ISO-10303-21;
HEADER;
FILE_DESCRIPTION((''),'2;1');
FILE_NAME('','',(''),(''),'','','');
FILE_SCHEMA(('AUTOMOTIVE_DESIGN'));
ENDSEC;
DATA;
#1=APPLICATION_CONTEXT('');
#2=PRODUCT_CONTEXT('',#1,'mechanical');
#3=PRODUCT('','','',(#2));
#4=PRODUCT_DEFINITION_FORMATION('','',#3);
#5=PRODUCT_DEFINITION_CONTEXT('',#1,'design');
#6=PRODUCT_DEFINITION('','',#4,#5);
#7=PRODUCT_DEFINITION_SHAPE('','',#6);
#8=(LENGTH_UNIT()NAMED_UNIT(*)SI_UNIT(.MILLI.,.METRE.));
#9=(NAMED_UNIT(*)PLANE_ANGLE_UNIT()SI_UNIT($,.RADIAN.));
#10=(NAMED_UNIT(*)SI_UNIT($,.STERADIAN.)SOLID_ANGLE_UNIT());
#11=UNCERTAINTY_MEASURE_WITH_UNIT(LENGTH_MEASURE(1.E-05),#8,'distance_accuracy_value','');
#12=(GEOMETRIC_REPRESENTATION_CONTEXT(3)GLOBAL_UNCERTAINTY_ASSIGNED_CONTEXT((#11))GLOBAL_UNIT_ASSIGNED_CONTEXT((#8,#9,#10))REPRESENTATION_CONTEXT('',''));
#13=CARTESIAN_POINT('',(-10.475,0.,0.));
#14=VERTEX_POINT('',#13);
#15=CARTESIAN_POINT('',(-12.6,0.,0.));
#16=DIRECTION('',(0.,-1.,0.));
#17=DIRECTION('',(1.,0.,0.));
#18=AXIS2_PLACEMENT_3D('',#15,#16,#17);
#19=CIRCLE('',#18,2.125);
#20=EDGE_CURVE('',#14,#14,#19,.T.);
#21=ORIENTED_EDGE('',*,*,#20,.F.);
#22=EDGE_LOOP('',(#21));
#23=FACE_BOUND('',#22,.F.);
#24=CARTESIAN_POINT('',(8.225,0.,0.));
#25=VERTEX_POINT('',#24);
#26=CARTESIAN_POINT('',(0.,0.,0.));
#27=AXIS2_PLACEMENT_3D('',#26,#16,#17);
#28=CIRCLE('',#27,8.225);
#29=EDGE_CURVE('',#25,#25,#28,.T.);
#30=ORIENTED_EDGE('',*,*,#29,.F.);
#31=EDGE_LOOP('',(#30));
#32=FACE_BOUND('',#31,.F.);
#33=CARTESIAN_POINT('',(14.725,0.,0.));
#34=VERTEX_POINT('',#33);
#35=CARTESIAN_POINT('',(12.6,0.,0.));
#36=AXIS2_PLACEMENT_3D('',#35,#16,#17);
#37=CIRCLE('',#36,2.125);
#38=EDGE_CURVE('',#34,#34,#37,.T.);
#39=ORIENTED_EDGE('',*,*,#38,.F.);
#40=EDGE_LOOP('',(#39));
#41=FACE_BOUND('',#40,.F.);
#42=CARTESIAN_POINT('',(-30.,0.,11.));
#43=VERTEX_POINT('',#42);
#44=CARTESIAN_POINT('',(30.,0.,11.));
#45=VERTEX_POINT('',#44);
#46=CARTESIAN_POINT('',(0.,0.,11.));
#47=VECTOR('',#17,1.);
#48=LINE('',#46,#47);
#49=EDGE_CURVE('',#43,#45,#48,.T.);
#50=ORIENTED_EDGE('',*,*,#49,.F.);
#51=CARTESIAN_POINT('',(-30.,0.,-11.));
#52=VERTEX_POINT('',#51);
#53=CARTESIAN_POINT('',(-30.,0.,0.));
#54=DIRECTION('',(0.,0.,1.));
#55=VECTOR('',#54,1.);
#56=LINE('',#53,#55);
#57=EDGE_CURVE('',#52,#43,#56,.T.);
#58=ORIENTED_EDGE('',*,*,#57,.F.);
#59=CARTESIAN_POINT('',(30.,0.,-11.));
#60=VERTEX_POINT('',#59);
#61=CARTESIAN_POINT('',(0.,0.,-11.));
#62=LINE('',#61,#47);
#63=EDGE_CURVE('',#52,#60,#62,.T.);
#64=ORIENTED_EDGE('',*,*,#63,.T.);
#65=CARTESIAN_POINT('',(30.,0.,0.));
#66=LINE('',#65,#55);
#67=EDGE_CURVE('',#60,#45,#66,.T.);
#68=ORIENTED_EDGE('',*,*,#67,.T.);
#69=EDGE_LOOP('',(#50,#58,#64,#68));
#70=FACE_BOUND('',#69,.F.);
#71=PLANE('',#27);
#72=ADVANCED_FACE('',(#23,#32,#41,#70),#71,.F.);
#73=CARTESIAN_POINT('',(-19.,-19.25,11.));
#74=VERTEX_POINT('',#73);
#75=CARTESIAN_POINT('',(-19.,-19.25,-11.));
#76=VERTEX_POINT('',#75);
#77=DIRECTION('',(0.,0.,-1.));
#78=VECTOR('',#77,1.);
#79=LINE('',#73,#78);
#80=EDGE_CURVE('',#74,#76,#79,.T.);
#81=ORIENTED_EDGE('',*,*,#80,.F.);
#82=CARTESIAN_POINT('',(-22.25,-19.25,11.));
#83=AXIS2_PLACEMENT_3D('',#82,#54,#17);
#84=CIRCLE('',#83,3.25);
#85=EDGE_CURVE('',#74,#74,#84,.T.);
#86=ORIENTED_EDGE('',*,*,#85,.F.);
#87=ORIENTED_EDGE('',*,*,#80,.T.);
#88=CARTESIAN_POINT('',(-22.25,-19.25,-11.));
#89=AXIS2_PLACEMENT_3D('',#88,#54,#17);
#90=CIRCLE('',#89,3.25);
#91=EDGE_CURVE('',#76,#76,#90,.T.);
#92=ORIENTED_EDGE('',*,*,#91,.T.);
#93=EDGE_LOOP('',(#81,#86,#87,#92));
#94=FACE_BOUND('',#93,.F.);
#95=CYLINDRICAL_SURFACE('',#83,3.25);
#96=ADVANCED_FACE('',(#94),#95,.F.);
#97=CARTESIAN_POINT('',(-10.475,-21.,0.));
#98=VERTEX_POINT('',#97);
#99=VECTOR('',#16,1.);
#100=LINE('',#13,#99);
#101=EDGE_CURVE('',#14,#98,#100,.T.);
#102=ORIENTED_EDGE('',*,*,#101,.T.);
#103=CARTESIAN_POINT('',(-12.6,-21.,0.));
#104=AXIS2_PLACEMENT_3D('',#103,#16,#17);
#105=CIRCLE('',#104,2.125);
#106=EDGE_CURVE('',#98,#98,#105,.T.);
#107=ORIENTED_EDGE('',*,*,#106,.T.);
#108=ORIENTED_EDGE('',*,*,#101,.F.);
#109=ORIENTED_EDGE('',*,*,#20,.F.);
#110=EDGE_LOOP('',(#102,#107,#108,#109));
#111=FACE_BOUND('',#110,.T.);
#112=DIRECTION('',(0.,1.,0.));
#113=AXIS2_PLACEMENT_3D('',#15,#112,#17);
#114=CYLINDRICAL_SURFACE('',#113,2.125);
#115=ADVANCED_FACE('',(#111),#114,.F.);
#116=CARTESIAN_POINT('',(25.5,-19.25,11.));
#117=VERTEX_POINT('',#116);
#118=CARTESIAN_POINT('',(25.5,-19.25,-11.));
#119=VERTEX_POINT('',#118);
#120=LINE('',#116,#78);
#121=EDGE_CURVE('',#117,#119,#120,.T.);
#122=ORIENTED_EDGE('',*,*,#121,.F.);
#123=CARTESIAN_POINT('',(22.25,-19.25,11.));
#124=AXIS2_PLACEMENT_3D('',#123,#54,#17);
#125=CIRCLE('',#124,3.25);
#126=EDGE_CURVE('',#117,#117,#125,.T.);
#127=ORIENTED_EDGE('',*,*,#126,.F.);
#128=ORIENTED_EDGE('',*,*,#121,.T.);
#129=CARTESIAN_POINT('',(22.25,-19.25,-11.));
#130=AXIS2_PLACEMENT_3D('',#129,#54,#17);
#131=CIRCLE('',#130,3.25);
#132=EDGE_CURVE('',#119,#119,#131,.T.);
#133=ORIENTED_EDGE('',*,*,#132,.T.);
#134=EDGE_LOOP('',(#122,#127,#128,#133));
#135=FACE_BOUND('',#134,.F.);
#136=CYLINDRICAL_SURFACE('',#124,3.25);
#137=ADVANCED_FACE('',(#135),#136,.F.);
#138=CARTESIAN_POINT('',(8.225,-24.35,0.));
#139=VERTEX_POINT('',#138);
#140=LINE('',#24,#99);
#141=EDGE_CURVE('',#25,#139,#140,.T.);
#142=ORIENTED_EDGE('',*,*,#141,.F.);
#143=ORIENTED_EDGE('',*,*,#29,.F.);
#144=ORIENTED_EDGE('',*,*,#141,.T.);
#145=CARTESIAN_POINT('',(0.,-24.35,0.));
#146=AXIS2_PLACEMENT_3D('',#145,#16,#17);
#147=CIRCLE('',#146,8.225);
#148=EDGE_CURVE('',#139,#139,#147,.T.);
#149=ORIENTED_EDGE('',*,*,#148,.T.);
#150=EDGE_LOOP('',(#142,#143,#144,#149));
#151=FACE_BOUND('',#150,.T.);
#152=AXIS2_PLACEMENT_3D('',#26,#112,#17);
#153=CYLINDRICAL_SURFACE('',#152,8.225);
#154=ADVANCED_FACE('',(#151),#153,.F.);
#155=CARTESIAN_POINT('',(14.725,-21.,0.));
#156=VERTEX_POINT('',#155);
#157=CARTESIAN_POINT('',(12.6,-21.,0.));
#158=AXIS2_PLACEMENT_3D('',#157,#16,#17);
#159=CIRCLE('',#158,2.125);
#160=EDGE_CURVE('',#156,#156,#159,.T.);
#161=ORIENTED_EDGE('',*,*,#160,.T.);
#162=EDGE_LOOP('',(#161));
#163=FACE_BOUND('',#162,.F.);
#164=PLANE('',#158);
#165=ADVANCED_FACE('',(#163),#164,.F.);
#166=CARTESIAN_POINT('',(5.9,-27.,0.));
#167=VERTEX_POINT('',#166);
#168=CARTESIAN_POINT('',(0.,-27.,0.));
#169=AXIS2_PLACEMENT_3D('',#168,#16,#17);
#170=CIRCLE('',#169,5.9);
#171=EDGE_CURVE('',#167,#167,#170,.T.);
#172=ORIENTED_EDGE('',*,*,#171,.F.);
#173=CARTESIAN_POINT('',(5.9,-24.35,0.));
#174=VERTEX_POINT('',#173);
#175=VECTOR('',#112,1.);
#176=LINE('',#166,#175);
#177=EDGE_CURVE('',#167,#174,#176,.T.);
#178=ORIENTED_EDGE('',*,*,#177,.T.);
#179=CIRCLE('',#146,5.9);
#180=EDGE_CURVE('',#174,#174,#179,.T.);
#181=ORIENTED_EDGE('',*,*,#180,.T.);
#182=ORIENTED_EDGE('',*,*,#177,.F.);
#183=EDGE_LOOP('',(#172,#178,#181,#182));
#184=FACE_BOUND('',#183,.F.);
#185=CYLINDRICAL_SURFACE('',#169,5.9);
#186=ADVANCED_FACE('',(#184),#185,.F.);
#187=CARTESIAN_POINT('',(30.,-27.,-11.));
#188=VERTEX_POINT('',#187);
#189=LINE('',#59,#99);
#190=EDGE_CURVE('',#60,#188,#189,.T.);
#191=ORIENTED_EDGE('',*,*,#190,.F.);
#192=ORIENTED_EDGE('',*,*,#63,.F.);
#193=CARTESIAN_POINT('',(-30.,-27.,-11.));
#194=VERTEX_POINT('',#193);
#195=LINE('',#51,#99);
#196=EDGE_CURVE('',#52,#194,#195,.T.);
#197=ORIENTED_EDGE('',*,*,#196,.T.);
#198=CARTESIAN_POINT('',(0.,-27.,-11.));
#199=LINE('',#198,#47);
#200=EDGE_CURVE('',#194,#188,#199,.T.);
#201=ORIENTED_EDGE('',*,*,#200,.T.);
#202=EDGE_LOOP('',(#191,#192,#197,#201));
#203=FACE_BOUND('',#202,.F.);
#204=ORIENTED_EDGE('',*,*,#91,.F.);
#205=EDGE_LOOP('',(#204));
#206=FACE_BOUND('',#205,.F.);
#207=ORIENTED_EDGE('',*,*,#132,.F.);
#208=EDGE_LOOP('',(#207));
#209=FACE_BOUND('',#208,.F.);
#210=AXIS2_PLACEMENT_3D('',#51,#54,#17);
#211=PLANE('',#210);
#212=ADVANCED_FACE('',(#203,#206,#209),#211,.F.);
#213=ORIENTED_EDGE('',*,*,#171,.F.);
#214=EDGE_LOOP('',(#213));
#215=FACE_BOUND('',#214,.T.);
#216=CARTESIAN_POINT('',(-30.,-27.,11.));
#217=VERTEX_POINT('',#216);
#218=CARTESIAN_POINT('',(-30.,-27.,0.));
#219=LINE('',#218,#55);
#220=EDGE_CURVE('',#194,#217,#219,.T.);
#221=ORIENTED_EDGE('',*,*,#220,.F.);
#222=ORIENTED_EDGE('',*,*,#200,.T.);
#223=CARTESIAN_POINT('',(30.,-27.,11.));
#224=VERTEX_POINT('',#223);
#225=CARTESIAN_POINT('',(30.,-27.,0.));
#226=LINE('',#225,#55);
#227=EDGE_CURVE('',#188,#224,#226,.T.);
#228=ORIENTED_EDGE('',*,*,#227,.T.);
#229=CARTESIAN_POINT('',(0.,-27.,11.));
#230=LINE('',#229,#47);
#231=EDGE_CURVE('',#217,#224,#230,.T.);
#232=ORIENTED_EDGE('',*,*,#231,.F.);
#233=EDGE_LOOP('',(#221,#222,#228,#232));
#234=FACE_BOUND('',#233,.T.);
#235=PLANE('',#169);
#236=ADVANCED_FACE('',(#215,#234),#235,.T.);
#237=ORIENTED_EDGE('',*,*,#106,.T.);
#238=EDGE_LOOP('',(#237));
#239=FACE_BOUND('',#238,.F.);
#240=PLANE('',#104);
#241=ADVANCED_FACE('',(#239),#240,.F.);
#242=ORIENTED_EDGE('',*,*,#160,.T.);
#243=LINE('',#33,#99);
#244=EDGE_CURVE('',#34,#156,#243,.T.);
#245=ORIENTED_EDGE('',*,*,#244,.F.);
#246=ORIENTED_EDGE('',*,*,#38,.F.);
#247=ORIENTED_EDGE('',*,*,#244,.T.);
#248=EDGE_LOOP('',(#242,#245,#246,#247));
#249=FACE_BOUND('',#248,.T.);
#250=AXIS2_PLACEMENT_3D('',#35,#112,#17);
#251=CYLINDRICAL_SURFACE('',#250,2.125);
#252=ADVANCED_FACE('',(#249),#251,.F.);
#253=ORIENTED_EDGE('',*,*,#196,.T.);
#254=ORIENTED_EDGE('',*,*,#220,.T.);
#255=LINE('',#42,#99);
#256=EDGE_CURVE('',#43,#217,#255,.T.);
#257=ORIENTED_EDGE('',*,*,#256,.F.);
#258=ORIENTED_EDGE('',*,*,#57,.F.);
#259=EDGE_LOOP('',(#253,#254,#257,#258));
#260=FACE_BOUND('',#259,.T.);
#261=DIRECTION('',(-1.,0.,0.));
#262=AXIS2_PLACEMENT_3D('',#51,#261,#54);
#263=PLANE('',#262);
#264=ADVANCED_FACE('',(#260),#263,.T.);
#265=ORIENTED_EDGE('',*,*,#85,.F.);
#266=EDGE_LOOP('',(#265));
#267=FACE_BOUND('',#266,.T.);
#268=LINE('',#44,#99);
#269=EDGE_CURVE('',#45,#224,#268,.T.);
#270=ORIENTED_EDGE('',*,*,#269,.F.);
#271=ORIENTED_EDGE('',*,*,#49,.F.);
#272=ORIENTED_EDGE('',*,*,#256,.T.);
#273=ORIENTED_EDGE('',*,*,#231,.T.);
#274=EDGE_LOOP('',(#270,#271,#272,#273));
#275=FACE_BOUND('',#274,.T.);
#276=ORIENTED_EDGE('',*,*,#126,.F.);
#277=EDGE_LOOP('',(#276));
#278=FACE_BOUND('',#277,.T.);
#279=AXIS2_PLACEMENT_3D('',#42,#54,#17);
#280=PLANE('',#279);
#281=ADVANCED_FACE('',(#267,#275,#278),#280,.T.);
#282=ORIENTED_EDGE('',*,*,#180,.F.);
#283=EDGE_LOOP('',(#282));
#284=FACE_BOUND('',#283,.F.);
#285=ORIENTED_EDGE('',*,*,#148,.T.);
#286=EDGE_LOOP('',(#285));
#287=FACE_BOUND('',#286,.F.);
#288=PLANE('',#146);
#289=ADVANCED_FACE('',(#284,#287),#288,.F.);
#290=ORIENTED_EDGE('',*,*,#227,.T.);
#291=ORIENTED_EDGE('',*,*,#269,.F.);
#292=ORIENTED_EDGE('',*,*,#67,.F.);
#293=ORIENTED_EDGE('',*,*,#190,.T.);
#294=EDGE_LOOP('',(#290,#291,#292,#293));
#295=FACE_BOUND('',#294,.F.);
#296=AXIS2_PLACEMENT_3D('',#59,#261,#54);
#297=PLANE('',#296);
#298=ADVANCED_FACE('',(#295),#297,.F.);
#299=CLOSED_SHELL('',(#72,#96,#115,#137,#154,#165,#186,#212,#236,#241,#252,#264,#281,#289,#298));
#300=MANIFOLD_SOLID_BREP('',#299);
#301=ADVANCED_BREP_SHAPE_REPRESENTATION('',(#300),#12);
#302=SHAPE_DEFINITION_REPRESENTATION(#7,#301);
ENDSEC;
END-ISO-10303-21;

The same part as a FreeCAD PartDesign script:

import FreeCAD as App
import Part
import Sketcher
from FreeCAD import Vector


def add_polygon(sketch, points):
    """Adds a closed chain of lines whose ends are joined by coincident constraints."""
    first, n = sketch.GeometryCount, len(points)
    for a, b in zip(points, points[1:] + points[:1]):
        sketch.addGeometry(Part.LineSegment(App.Vector(*a, 0), App.Vector(*b, 0)), False)
    for i in range(n):
        sketch.addConstraint(Sketcher.Constraint("Coincident", first + i, 2, first + (i + 1) % n, 1))

doc = App.newDocument("Part")
body = doc.addObject("PartDesign::Body", "Body")

# Sketch on XZ plane
sketch1 = body.newObject("Sketcher::SketchObject", "Sketch")
sketch1.AttachmentSupport = (doc.getObject("XZ_Plane"), [""])
sketch1.MapMode = "FlatFace"
add_polygon(sketch1, [(-30, 11), (-30, -11), (30, -11), (30, 11)])  # lines 0-3
sketch1.addConstraint(Sketcher.Constraint("Vertical", 0))
sketch1.addConstraint(Sketcher.Constraint("Horizontal", 1))
sketch1.addConstraint(Sketcher.Constraint("Vertical", 2))
sketch1.addConstraint(Sketcher.Constraint("Horizontal", 3))
sketch1.addConstraint(Sketcher.Constraint("Symmetric", 0, 2, 2, 2, -1, 1))
sketch1.addConstraint(Sketcher.Constraint("DistanceX", 1, 1, 1, 2, 60.0))
sketch1.addConstraint(Sketcher.Constraint("DistanceY", 0, 2, 0, 1, 22.0))
pad1 = body.newObject("PartDesign::Pad", "Pad")
pad1.Profile = sketch1
pad1.Length = 27

# Sketch on XZ plane
sketch2 = body.newObject("Sketcher::SketchObject", "Sketch001")
sketch2.AttachmentSupport = (doc.getObject("XZ_Plane"), [""])
sketch2.MapMode = "FlatFace"
sketch2.addGeometry(Part.Circle(Vector(12.6, 0, 0), Vector(0, 0, 1), 2.125), False)
sketch2.addGeometry(Part.Circle(Vector(-12.6, 0, 0), Vector(0, 0, 1), 2.125), False)
sketch2.addConstraint(Sketcher.Constraint("Equal", 0, 1))
sketch2.addConstraint(Sketcher.Constraint("Symmetric", 0, 3, 1, 3, -1, 1))
sketch2.addConstraint(Sketcher.Constraint("PointOnObject", 0, 3, -1))
sketch2.addConstraint(Sketcher.Constraint("Diameter", 0, 4.25))
sketch2.addConstraint(Sketcher.Constraint("DistanceX", -1, 1, 0, 3, 12.6))
pocket1 = body.newObject("PartDesign::Pocket", "Pocket")
pocket1.Profile = sketch2
pocket1.Length = 21
pocket1.Reversed = True

# Sketch on XY plane
sketch3 = body.newObject("Sketcher::SketchObject", "Sketch002")
sketch3.AttachmentSupport = (doc.getObject("XY_Plane"), [""])
sketch3.MapMode = "FlatFace"
sketch3.AttachmentOffset = App.Placement(Vector(0, 0, 11), App.Rotation())
sketch3.addGeometry(Part.Circle(Vector(22.25, -19.25, 0), Vector(0, 0, 1), 3.25), False)
sketch3.addGeometry(Part.Circle(Vector(-22.25, -19.25, 0), Vector(0, 0, 1), 3.25), False)
sketch3.addConstraint(Sketcher.Constraint("Equal", 0, 1))
sketch3.addConstraint(Sketcher.Constraint("Symmetric", 0, 3, 1, 3, -2))
sketch3.addConstraint(Sketcher.Constraint("Diameter", 0, 6.5))
sketch3.addConstraint(Sketcher.Constraint("DistanceX", 1, 3, 0, 3, 44.5))
sketch3.addConstraint(Sketcher.Constraint("DistanceY", 0, 3, -1, 1, 19.25))
pocket2 = body.newObject("PartDesign::Pocket", "Pocket001")
pocket2.Profile = sketch3
pocket2.Type = "ThroughAll"

# Sketch on XZ plane
sketch4 = body.newObject("Sketcher::SketchObject", "Sketch003")
sketch4.AttachmentSupport = (doc.getObject("XZ_Plane"), [""])
sketch4.MapMode = "FlatFace"
sketch4.addGeometry(Part.Circle(Vector(0, 0, 0), Vector(0, 0, 1), 8.225), False)
sketch4.addConstraint(Sketcher.Constraint("Coincident", 0, 3, -1, 1))
sketch4.addConstraint(Sketcher.Constraint("Diameter", 0, 16.45))
pocket3 = body.newObject("PartDesign::Pocket", "Pocket002")
pocket3.Profile = sketch4
pocket3.Length = 24.35
pocket3.Reversed = True

# Sketch on XZ plane
sketch5 = body.newObject("Sketcher::SketchObject", "Sketch004")
sketch5.AttachmentSupport = (doc.getObject("XZ_Plane"), [""])
sketch5.MapMode = "FlatFace"
sketch5.AttachmentOffset = App.Placement(Vector(0, 0, 27), App.Rotation())
sketch5.addGeometry(Part.Circle(Vector(0, 0, 0), Vector(0, 0, 1), 5.9), False)
sketch5.addConstraint(Sketcher.Constraint("Coincident", 0, 3, -1, 1))
sketch5.addConstraint(Sketcher.Constraint("Diameter", 0, 11.8))
pocket4 = body.newObject("PartDesign::Pocket", "Pocket003")
pocket4.Profile = sketch5
pocket4.Type = "ThroughAll"

doc.recompute()
